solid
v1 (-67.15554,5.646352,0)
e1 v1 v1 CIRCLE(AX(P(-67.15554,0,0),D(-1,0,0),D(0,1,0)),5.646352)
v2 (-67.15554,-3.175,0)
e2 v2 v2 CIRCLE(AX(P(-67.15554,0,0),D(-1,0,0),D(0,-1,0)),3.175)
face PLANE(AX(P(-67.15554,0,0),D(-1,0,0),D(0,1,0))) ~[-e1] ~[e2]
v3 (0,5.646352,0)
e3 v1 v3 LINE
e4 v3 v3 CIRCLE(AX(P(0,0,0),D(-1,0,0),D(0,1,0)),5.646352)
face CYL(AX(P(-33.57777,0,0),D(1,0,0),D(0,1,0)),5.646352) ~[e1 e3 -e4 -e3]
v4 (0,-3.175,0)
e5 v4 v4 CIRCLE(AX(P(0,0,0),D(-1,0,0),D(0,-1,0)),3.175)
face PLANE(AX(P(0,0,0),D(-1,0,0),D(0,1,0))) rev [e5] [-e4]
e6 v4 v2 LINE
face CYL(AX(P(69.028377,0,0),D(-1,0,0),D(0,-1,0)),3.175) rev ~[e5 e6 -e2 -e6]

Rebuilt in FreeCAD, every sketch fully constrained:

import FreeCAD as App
import Part
import Sketcher

V = App.Vector
Q = App.Units.Quantity


def add_polygon(sketch, points):
    """Adds a closed chain of lines whose ends are joined by coincident constraints."""
    first, n = sketch.GeometryCount, len(points)
    for a, b in zip(points, points[1:] + points[:1]):
        sketch.addGeometry(Part.LineSegment(App.Vector(*a, 0), App.Vector(*b, 0)), False)
    for i in range(n):
        sketch.addConstraint(Sketcher.Constraint("Coincident", first + i, 2, first + (i + 1) % n, 1))

doc = App.newDocument("Part")
body = doc.addObject("PartDesign::Body", "Body")

sketch1 = body.newObject("Sketcher::SketchObject", "Sketch")
sketch1.AttachmentSupport = (doc.getObject("XY_Plane"), [""])
sketch1.MapMode = "FlatFace"
add_polygon(sketch1, [(-67, 6), (-67, 0), (0, 0), (0, 6)])
sketch1.addConstraint(Sketcher.Constraint("Vertical", 0))
sketch1.addConstraint(Sketcher.Constraint("Horizontal", 1))
sketch1.addConstraint(Sketcher.Constraint("Vertical", 2))
sketch1.addConstraint(Sketcher.Constraint("Horizontal", 3))
sketch1.addConstraint(Sketcher.Constraint("Coincident", 1, 2, -1, 1))
sketch1.addConstraint(Sketcher.Constraint("DistanceX", 1, 1, 1, 2, 67.15554))
sketch1.addConstraint(Sketcher.Constraint("DistanceY", 0, 2, 0, 1, 5.646352))
revolution = body.newObject("PartDesign::Revolution", "Revolution")
revolution.Profile = sketch1
revolution.ReferenceAxis = (sketch1, ["H_Axis"])
revolution.Angle = 360

sketch2 = body.newObject("Sketcher::SketchObject", "Sketch001")
sketch2.AttachmentSupport = (doc.getObject("YZ_Plane"), [""])
sketch2.MapMode = "FlatFace"
sketch2.addGeometry(Part.Circle(V(0, 0, 0), V(0, 0, 1), 3.2), False)
sketch2.addConstraint(Sketcher.Constraint("Coincident", 0, 3, -1, 1))
sketch2.addConstraint(Sketcher.Constraint("Diameter", 0, Q("0.25 in")))
doc.recompute()
hole = body.newObject("PartDesign::Hole", "Hole")
hole.Profile = sketch2
hole.ThreadType = "None"
hole.Diameter = Q("0.25 in")
hole.DepthType = "ThroughAll"

doc.recompute()
